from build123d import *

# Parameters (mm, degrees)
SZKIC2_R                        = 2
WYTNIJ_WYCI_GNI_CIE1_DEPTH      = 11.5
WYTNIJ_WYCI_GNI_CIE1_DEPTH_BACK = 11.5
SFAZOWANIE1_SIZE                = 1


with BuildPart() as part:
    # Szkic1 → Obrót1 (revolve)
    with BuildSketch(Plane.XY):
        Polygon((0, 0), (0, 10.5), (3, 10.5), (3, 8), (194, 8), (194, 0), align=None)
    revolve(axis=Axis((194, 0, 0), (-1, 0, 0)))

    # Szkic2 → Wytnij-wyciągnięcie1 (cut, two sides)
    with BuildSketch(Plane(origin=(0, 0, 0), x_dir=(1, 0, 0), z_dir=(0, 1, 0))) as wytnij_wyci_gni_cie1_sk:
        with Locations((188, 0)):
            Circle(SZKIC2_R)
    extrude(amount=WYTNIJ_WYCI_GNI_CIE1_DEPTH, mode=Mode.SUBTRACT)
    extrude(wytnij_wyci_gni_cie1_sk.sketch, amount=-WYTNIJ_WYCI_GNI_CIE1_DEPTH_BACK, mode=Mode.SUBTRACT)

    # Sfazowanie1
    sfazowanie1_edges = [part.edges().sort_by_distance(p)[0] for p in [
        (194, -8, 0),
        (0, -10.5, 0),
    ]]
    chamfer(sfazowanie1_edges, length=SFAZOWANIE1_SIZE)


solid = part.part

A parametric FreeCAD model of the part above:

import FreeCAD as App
import Part
import Sketcher

V = App.Vector


def edges_at(feature, points):
    """Names of the edges that pass closest to the given points."""
    edges = feature.Shape.Edges
    near = lambda p: min(range(len(edges)), key=lambda i: edges[i].distToShape(Part.Vertex(*p))[0])
    return sorted({f"Edge{near(p) + 1}" for p in points})

doc = App.newDocument("Part")
body = doc.addObject("PartDesign::Body", "Body")

# Sketch on XY plane
sketch1 = body.newObject("Sketcher::SketchObject", "Sketch")
sketch1.AttachmentSupport = (doc.getObject("XY_Plane"), [""])
sketch1.MapMode = "FlatFace"
sketch1.addGeometry(Part.LineSegment(V(0, 10.5, 0), V(0, 0, 0)), False)
sketch1.addGeometry(Part.LineSegment(V(0, 0, 0), V(194, 0, 0)), False)
sketch1.addGeometry(Part.LineSegment(V(194, 0, 0), V(194, 8, 0)), False)
sketch1.addGeometry(Part.LineSegment(V(194, 8, 0), V(3, 8, 0)), False)
sketch1.addGeometry(Part.LineSegment(V(3, 8, 0), V(3, 10.5, 0)), False)
sketch1.addGeometry(Part.LineSegment(V(3, 10.5, 0), V(0, 10.5, 0)), False)
sketch1.addConstraint(Sketcher.Constraint("Coincident", 0, 2, 1, 1))
sketch1.addConstraint(Sketcher.Constraint("Coincident", 1, 2, 2, 1))
sketch1.addConstraint(Sketcher.Constraint("Coincident", 2, 2, 3, 1))
sketch1.addConstraint(Sketcher.Constraint("Coincident", 3, 2, 4, 1))
sketch1.addConstraint(Sketcher.Constraint("Coincident", 4, 2, 5, 1))
sketch1.addConstraint(Sketcher.Constraint("Coincident", 5, 2, 0, 1))
sketch1.addConstraint(Sketcher.Constraint("Vertical", 0))
sketch1.addConstraint(Sketcher.Constraint("Horizontal", 1))
sketch1.addConstraint(Sketcher.Constraint("Vertical", 2))
sketch1.addConstraint(Sketcher.Constraint("Horizontal", 3))
sketch1.addConstraint(Sketcher.Constraint("Vertical", 4))
sketch1.addConstraint(Sketcher.Constraint("Horizontal", 5))
sketch1.addConstraint(Sketcher.Constraint("Coincident", 0, 2, -1, 1))
sketch1.addConstraint(Sketcher.Constraint("DistanceX", 1, 1, 1, 2, 194.0))
sketch1.addConstraint(Sketcher.Constraint("DistanceX", 3, 2, 3, 1, 191.0))
sketch1.addConstraint(Sketcher.Constraint("DistanceY", 2, 1, 2, 2, 8.0))
sketch1.addConstraint(Sketcher.Constraint("DistanceY", 0, 2, 0, 1, 10.5))
revolution = body.newObject("PartDesign::Revolution", "Revolution")
revolution.Profile = sketch1
revolution.ReferenceAxis = (sketch1, ["H_Axis"])
revolution.Angle = 360

# Sketch on XZ plane
sketch2 = body.newObject("Sketcher::SketchObject", "Sketch001")
sketch2.AttachmentSupport = (doc.getObject("XZ_Plane"), [""])
sketch2.MapMode = "FlatFace"
sketch2.addGeometry(Part.Circle(V(188, 0, 0), V(0, 0, 1), 2), False)
sketch2.addConstraint(Sketcher.Constraint("PointOnObject", 0, 3, -1))
sketch2.addConstraint(Sketcher.Constraint("Diameter", 0, 4.0))
sketch2.addConstraint(Sketcher.Constraint("DistanceX", -1, 1, 0, 3, 188.0))
pocket1 = body.newObject("PartDesign::Pocket", "Pocket")
pocket1.Profile = sketch2
pocket1.Type = "ThroughAll"
pocket1.Midplane = True
doc.recompute()

chamfer = body.newObject("PartDesign::Chamfer", "Chamfer")
chamfer.Base = (pocket1, edges_at(pocket1, [(194, -8, 0), (0, -10.5, 0)]))
chamfer.Size = 1

doc.recompute()
